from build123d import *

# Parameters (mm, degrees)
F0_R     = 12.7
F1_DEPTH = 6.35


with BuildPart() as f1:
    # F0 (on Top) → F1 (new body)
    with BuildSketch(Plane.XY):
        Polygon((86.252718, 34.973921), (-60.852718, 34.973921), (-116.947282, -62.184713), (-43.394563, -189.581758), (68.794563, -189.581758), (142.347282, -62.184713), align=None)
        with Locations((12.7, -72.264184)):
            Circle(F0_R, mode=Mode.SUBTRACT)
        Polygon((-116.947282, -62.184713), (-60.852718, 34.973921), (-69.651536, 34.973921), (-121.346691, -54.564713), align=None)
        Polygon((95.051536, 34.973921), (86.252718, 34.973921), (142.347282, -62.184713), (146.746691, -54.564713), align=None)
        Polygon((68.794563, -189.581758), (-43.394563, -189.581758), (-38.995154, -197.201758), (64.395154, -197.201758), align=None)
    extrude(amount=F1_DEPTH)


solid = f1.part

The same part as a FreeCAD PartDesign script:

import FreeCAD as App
import Part
import Sketcher
Q = App.Units.Quantity


def add_polygon(sketch, points):
    """Adds a closed chain of lines whose ends are joined by coincident constraints."""
    first, n = sketch.GeometryCount, len(points)
    for a, b in zip(points, points[1:] + points[:1]):
        sketch.addGeometry(Part.LineSegment(App.Vector(*a, 0), App.Vector(*b, 0)), False)
    for i in range(n):
        sketch.addConstraint(Sketcher.Constraint("Coincident", first + i, 2, first + (i + 1) % n, 1))

doc = App.newDocument("Part")
body = doc.addObject("PartDesign::Body", "Body")

sketch1 = body.newObject("Sketcher::SketchObject", "Sketch")
sketch1.AttachmentSupport = (doc.getObject("XY_Plane"), [""])
sketch1.MapMode = "FlatFace"
add_polygon(sketch1, [(-70, 35), (-121, -55), (-117, -62), (-43, -190), (-39, -197), (64, -197), (69, -190), (142, -62), (147, -55), (95, 35)])
sketch1.addGeometry(Part.Circle(App.Vector(13, -72, 0), App.Vector(0, 0, 1), 13), False)
sketch1.addConstraint([
    Sketcher.Constraint("Horizontal", 4),
    Sketcher.Constraint("Horizontal", 9),
    Sketcher.Constraint("Parallel", 1, 2),
    Sketcher.Constraint("Parallel", 2, 3),
    Sketcher.Constraint("Parallel", 0, 5),
    Sketcher.Constraint("Parallel", 5, 6),
    Sketcher.Constraint("Parallel", 6, 7),
    Sketcher.Constraint("Parallel", 3, 8),
    Sketcher.Constraint("Horizontal", 2, 2, 5, 2),
    Sketcher.Constraint("Horizontal", 1, 2, 6, 2),
    Sketcher.Constraint("Horizontal", 0, 2, 7, 2),
    Sketcher.Constraint("Equal", 1, 3),
    Sketcher.Constraint("Equal", 3, 5),
    Sketcher.Constraint("Diameter", 10, Q("1 in")),
    Sketcher.Constraint("Angle", 0, Q("-120 deg")),
    Sketcher.Constraint("DistanceX", -1, 1, 10, 3, Q("0.5 in")),
    Sketcher.Constraint("DistanceY", 1, 2, 0, 2, Q("0.3 in")),
    Sketcher.Constraint("DistanceX", 4, 1, 4, 2, 103.390308),
    Sketcher.Constraint("DistanceX", 9, 2, 9, 1, 164.703072),
    Sketcher.Constraint("Distance", 0, 103.390309),
    Sketcher.Constraint("DistanceX", 0, 2, -1, 1, 121.346691),
    Sketcher.Constraint("DistanceY", 2, 2, -1, 1, 189.581758),
    Sketcher.Constraint("DistanceY", 10, 3, 0, 2, 17.699471),
])
pad1 = body.newObject("PartDesign::Pad", "Pad")
pad1.Profile = sketch1
pad1.Length = Q("0.25 in")

doc.recompute()
